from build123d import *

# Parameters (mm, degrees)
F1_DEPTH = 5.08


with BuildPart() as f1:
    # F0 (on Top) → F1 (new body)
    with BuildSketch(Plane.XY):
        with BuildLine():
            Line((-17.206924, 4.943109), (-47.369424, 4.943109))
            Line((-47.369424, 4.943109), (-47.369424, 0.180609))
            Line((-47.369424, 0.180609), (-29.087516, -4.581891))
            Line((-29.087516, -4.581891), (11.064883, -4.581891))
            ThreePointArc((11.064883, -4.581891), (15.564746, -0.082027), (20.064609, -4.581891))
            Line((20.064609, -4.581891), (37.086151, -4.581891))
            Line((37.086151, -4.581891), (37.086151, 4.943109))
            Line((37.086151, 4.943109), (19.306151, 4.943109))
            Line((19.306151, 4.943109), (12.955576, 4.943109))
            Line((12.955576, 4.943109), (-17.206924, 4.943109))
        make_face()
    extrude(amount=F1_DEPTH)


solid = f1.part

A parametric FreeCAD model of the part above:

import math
import FreeCAD as App
import Part
import Sketcher
Q = App.Units.Quantity

doc = App.newDocument("Part")
body = doc.addObject("PartDesign::Body", "Body")

# Sketch on XY plane
sketch1 = doc.addObject("Sketcher::SketchObject", "Sketch")
body.addObject(sketch1)
sketch1.AttachmentSupport = (doc.XY_Plane, [""])
sketch1.MapMode = "FlatFace"
sketch1.addGeometry(Part.LineSegment(App.Vector(-47.4, 4.9, 0), App.Vector(-47.4, 0.2, 0)), False)
sketch1.addGeometry(Part.LineSegment(App.Vector(-47.4, 0.2, 0), App.Vector(-29.1, -4.6, 0)), False)
sketch1.addGeometry(Part.LineSegment(App.Vector(-29.1, -4.6, 0), App.Vector(11.1, -4.6, 0)), False)
sketch1.addGeometry(Part.ArcOfCircle(Part.Circle(App.Vector(15.6, -4.6, 0), App.Vector(0, 0, 1), 4.5), math.radians(0), math.radians(180)), False)
sketch1.addGeometry(Part.LineSegment(App.Vector(20.1, -4.6, 0), App.Vector(37.1, -4.6, 0)), False)
sketch1.addGeometry(Part.LineSegment(App.Vector(37.1, -4.6, 0), App.Vector(37.1, 4.9, 0)), False)
sketch1.addGeometry(Part.LineSegment(App.Vector(37.1, 4.9, 0), App.Vector(-47.4, 4.9, 0)), False)
sketch1.addConstraint(Sketcher.Constraint("Coincident", 0, 2, 1, 1))
sketch1.addConstraint(Sketcher.Constraint("Coincident", 1, 2, 2, 1))
sketch1.addConstraint(Sketcher.Constraint("Coincident", 2, 2, 3, 2))
sketch1.addConstraint(Sketcher.Constraint("Coincident", 3, 1, 4, 1))
sketch1.addConstraint(Sketcher.Constraint("Coincident", 4, 2, 5, 1))
sketch1.addConstraint(Sketcher.Constraint("Coincident", 5, 2, 6, 1))
sketch1.addConstraint(Sketcher.Constraint("Coincident", 6, 2, 0, 1))
sketch1.addConstraint(Sketcher.Constraint("Vertical", 0))
sketch1.addConstraint(Sketcher.Constraint("Horizontal", 2))
sketch1.addConstraint(Sketcher.Constraint("Horizontal", 4))
sketch1.addConstraint(Sketcher.Constraint("Vertical", 5))
sketch1.addConstraint(Sketcher.Constraint("Horizontal", 6))
sketch1.addConstraint(Sketcher.Constraint("Horizontal", 3, 3, 1, 2))
sketch1.addConstraint(Sketcher.Constraint("Horizontal", 2, 2, 3, 1))
sketch1.addConstraint(Sketcher.Constraint("DistanceY", 0, 2, 0, 1, Q("0.1875 in")))
sketch1.addConstraint(Sketcher.Constraint("DistanceY", 5, 1, 5, 2, Q("0.375 in")))
sketch1.addConstraint(Sketcher.Constraint("DistanceX", 2, 1, 2, 2, Q("40.152399 mm")))
sketch1.addConstraint(Sketcher.Constraint("Radius", 3, Q("4.499863 mm")))
sketch1.addConstraint(Sketcher.Constraint("DistanceX", 4, 1, 4, 2, Q("17.021542 mm")))
sketch1.addConstraint(Sketcher.Constraint("Distance", 1, Q("18.89205 mm")))
sketch1.addConstraint(Sketcher.Constraint("DistanceY", 3, 3, -1, 1, Q("4.58189 mm")))
sketch1.addConstraint(Sketcher.Constraint("DistanceX", -1, 1, 3, 1, Q("20.064609 mm")))
pad1 = doc.addObject("PartDesign::Pad", "Pad")
body.addObject(pad1)
pad1.Profile = sketch1
pad1.Length = Q("0.2 in")

doc.recompute()
